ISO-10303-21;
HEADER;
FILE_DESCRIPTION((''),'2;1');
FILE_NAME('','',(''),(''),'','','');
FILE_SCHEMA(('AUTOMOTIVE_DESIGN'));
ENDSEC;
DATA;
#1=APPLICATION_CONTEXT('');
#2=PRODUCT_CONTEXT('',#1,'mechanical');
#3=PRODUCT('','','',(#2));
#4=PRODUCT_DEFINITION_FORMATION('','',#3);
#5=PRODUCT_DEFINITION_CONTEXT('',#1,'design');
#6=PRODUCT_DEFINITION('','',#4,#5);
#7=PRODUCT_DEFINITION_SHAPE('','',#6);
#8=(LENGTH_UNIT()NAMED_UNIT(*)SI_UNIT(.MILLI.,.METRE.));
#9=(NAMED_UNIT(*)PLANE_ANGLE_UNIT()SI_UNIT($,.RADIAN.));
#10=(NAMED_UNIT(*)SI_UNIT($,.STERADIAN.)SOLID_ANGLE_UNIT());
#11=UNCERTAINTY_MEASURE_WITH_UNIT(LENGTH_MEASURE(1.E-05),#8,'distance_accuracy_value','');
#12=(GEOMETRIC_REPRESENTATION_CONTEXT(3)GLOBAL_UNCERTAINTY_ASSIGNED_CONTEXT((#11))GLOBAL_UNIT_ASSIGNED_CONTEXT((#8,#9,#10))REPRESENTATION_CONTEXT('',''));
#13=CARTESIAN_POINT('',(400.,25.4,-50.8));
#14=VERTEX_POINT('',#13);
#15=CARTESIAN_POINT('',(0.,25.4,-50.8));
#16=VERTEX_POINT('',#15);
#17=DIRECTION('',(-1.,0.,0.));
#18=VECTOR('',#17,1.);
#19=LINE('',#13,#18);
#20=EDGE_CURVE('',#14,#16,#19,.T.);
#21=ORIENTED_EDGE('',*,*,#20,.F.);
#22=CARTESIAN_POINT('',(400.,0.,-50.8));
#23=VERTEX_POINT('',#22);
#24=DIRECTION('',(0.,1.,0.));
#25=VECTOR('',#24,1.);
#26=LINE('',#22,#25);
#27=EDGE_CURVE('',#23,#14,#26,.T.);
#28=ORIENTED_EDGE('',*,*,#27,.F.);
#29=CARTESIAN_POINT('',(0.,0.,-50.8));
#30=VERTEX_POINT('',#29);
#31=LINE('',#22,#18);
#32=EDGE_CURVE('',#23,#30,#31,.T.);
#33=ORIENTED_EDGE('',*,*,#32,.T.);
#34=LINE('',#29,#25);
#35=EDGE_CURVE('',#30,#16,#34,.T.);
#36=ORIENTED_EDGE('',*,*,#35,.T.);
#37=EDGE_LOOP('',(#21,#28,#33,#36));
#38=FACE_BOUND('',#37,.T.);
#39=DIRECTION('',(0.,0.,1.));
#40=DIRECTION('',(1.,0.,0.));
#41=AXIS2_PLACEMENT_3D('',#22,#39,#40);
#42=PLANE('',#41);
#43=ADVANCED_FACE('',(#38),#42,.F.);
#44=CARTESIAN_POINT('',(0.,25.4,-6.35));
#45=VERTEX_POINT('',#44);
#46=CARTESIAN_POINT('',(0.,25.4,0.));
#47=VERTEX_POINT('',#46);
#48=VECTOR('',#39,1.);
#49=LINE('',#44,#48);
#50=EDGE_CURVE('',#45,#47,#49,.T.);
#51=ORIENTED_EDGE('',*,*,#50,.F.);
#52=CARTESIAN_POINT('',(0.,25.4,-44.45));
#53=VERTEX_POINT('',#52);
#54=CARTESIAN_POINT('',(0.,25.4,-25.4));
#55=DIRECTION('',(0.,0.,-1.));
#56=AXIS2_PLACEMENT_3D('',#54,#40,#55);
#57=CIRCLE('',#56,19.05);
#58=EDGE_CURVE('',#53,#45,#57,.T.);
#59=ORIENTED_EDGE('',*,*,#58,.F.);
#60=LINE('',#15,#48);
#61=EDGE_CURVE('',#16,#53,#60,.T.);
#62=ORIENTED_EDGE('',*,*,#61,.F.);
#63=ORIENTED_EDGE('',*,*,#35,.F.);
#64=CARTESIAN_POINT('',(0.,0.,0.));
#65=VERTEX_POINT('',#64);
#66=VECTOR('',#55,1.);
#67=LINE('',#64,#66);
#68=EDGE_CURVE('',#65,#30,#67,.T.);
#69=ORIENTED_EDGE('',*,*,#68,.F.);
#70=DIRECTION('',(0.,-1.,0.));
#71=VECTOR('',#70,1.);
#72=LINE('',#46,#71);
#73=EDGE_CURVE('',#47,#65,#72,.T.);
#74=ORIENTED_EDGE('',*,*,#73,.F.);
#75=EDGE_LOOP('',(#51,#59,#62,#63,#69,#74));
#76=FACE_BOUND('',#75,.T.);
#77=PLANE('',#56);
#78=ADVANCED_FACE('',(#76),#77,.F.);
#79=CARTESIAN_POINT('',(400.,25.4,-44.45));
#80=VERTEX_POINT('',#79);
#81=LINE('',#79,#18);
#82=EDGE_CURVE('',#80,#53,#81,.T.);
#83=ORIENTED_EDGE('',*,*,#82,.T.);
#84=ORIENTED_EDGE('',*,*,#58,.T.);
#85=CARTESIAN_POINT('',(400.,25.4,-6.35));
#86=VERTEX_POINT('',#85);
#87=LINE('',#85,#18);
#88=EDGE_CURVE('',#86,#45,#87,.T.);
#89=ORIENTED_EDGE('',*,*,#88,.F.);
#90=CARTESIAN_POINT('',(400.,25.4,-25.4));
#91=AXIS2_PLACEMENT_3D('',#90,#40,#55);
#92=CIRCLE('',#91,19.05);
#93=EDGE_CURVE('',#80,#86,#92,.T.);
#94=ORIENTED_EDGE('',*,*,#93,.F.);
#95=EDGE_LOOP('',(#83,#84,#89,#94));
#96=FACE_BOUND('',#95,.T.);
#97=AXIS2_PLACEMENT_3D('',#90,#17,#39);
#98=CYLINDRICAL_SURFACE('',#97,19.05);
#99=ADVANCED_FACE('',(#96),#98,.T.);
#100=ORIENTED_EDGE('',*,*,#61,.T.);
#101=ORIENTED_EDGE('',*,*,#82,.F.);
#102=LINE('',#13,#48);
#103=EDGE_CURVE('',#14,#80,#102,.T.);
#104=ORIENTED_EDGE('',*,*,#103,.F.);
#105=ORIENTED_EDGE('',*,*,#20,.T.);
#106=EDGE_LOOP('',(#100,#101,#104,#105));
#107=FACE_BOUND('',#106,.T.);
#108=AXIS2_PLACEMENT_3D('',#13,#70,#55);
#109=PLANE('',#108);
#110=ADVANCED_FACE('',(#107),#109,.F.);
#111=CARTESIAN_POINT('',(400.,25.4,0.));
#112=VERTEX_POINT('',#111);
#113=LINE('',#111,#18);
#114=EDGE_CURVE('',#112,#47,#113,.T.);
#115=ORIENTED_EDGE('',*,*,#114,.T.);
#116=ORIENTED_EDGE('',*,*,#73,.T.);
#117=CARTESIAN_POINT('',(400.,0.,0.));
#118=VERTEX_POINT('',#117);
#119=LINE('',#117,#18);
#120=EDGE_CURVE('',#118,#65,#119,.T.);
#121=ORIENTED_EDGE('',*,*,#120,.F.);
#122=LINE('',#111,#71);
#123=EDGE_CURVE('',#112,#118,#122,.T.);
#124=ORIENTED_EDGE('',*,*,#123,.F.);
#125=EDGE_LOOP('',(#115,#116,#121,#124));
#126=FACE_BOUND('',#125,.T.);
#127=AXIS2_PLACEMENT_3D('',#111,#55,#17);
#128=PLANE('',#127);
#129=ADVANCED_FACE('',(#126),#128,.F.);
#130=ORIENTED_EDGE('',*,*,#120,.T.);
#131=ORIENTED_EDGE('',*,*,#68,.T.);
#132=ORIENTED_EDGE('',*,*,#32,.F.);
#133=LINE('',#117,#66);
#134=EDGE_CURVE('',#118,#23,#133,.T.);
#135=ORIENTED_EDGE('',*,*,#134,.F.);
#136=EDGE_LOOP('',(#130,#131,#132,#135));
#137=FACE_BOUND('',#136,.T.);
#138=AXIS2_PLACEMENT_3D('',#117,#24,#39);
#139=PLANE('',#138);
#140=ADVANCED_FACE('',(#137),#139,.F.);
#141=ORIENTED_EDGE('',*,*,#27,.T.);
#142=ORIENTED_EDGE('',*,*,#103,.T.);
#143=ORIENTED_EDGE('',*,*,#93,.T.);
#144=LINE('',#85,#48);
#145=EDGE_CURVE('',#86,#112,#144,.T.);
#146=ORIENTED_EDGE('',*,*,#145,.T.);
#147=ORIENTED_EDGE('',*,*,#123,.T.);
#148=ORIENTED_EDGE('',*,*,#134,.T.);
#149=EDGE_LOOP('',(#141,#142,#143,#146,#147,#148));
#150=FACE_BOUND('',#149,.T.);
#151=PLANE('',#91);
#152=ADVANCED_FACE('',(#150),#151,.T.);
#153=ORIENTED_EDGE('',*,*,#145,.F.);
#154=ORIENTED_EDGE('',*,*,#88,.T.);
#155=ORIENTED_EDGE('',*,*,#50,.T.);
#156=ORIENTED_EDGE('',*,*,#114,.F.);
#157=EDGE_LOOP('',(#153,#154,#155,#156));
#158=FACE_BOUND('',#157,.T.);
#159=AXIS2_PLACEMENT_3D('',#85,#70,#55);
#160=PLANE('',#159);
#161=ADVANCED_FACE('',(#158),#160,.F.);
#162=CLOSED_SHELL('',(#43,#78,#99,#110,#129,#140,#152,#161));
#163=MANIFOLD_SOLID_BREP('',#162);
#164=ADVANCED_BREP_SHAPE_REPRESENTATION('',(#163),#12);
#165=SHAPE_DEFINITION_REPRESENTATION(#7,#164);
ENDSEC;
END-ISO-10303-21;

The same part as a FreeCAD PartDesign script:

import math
import FreeCAD as App
import Part
import Sketcher

V = App.Vector
Q = App.Units.Quantity

doc = App.newDocument("Part")
body = doc.addObject("PartDesign::Body", "Body")

# Sketch on YZ plane
sketch1 = body.newObject("Sketcher::SketchObject", "Sketch")
sketch1.AttachmentSupport = (doc.getObject("YZ_Plane"), [""])
sketch1.MapMode = "FlatFace"
sketch1.addGeometry(Part.LineSegment(V(0, 0, 0), V(0, -51, 0)), False)
sketch1.addGeometry(Part.LineSegment(V(0, -51, 0), V(25, -51, 0)), False)
sketch1.addGeometry(Part.LineSegment(V(25, -51, 0), V(25, -44, 0)), False)
sketch1.addGeometry(Part.ArcOfCircle(Part.Circle(V(25, -25, 0), V(0, 0, 1), 19), math.radians(-90), math.radians(90)), False)
sketch1.addGeometry(Part.LineSegment(V(25, -6, 0), V(25, 0, 0)), False)
sketch1.addGeometry(Part.LineSegment(V(25, 0, 0), V(0, 0, 0)), False)
sketch1.addConstraint(Sketcher.Constraint("Coincident", 0, 2, 1, 1))
sketch1.addConstraint(Sketcher.Constraint("Coincident", 1, 2, 2, 1))
sketch1.addConstraint(Sketcher.Constraint("Coincident", 2, 2, 3, 1))
sketch1.addConstraint(Sketcher.Constraint("Coincident", 3, 2, 4, 1))
sketch1.addConstraint(Sketcher.Constraint("Coincident", 4, 2, 5, 1))
sketch1.addConstraint(Sketcher.Constraint("Coincident", 5, 2, 0, 1))
sketch1.addConstraint(Sketcher.Constraint("Vertical", 0))
sketch1.addConstraint(Sketcher.Constraint("Horizontal", 1))
sketch1.addConstraint(Sketcher.Constraint("Vertical", 2))
sketch1.addConstraint(Sketcher.Constraint("Vertical", 4))
sketch1.addConstraint(Sketcher.Constraint("Horizontal", 5))
sketch1.addConstraint(Sketcher.Constraint("Coincident", 5, 2, -1, 1))
sketch1.addConstraint(Sketcher.Constraint("Vertical", 3, 3, 1, 2))
sketch1.addConstraint(Sketcher.Constraint("Vertical", 2, 2, 3, 2))
sketch1.addConstraint(Sketcher.Constraint("Equal", 2, 4))
sketch1.addConstraint(Sketcher.Constraint("DistanceX", 1, 1, 1, 2, Q("1 in")))
sketch1.addConstraint(Sketcher.Constraint("DistanceY", 0, 2, 0, 1, Q("2 in")))
sketch1.addConstraint(Sketcher.Constraint("Radius", 3, Q("0.75 in")))
pad1 = body.newObject("PartDesign::Pad", "Pad")
pad1.Profile = sketch1
pad1.Length = 400

doc.recompute()
